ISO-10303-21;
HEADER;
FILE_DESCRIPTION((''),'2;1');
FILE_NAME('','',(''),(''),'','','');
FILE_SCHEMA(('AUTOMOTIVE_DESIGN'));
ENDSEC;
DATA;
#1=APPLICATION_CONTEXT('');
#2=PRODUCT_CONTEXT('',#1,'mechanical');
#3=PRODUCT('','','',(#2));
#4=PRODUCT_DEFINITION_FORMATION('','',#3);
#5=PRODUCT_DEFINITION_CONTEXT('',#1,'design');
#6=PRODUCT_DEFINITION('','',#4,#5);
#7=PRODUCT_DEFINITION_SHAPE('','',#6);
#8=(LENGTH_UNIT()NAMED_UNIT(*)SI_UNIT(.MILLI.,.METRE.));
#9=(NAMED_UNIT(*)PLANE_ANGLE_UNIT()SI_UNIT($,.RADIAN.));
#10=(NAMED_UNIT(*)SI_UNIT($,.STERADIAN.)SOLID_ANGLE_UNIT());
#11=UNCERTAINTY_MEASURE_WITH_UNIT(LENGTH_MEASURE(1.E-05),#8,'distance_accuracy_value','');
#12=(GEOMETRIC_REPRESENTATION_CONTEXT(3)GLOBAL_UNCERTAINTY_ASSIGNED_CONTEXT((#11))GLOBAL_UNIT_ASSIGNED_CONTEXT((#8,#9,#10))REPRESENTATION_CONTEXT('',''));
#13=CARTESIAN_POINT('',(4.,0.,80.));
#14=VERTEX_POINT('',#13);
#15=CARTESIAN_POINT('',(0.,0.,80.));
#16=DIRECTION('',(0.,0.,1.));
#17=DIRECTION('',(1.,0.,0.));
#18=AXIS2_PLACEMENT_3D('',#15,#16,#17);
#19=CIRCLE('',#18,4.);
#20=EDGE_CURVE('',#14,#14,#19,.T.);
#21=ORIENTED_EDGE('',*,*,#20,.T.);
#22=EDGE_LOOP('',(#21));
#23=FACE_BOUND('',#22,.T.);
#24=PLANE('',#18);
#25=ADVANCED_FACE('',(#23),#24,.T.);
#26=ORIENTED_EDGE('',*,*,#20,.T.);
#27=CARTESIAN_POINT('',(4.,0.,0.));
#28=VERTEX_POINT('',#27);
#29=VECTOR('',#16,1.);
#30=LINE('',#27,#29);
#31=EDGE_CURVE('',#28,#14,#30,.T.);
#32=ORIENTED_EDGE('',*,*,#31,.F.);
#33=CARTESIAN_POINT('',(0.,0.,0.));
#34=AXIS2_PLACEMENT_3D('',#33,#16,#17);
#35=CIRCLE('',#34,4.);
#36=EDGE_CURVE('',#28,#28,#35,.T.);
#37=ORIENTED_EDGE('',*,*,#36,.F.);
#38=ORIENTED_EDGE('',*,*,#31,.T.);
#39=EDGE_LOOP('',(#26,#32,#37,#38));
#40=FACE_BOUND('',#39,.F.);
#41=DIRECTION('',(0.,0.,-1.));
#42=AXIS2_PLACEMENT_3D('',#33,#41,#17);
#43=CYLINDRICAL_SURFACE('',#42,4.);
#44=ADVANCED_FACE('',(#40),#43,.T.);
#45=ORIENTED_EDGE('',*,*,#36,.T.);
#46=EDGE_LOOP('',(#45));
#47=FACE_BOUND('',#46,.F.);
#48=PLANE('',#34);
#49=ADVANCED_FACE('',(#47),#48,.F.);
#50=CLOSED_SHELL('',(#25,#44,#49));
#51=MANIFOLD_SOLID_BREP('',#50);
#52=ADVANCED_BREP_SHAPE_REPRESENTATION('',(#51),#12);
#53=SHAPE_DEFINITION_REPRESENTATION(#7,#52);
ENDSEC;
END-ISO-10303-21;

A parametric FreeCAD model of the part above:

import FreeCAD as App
import Part
import Sketcher
Q = App.Units.Quantity

doc = App.newDocument("Part")
body = doc.addObject("PartDesign::Body", "Body")

sketch1 = body.newObject("Sketcher::SketchObject", "Sketch")
sketch1.AttachmentSupport = (doc.getObject("XY_Plane"), [""])
sketch1.MapMode = "FlatFace"
sketch1.addGeometry(Part.Circle(App.Vector(0, 0, 0), App.Vector(0, 0, 1), 4), False)
sketch1.addConstraint(Sketcher.Constraint("Coincident", 0, 3, -1, 1))
sketch1.addConstraint(Sketcher.Constraint("Diameter", 0, Q("8 mm")))
pad1 = body.newObject("PartDesign::Pad", "Pad")
pad1.Profile = sketch1
pad1.Length = 80

doc.recompute()
